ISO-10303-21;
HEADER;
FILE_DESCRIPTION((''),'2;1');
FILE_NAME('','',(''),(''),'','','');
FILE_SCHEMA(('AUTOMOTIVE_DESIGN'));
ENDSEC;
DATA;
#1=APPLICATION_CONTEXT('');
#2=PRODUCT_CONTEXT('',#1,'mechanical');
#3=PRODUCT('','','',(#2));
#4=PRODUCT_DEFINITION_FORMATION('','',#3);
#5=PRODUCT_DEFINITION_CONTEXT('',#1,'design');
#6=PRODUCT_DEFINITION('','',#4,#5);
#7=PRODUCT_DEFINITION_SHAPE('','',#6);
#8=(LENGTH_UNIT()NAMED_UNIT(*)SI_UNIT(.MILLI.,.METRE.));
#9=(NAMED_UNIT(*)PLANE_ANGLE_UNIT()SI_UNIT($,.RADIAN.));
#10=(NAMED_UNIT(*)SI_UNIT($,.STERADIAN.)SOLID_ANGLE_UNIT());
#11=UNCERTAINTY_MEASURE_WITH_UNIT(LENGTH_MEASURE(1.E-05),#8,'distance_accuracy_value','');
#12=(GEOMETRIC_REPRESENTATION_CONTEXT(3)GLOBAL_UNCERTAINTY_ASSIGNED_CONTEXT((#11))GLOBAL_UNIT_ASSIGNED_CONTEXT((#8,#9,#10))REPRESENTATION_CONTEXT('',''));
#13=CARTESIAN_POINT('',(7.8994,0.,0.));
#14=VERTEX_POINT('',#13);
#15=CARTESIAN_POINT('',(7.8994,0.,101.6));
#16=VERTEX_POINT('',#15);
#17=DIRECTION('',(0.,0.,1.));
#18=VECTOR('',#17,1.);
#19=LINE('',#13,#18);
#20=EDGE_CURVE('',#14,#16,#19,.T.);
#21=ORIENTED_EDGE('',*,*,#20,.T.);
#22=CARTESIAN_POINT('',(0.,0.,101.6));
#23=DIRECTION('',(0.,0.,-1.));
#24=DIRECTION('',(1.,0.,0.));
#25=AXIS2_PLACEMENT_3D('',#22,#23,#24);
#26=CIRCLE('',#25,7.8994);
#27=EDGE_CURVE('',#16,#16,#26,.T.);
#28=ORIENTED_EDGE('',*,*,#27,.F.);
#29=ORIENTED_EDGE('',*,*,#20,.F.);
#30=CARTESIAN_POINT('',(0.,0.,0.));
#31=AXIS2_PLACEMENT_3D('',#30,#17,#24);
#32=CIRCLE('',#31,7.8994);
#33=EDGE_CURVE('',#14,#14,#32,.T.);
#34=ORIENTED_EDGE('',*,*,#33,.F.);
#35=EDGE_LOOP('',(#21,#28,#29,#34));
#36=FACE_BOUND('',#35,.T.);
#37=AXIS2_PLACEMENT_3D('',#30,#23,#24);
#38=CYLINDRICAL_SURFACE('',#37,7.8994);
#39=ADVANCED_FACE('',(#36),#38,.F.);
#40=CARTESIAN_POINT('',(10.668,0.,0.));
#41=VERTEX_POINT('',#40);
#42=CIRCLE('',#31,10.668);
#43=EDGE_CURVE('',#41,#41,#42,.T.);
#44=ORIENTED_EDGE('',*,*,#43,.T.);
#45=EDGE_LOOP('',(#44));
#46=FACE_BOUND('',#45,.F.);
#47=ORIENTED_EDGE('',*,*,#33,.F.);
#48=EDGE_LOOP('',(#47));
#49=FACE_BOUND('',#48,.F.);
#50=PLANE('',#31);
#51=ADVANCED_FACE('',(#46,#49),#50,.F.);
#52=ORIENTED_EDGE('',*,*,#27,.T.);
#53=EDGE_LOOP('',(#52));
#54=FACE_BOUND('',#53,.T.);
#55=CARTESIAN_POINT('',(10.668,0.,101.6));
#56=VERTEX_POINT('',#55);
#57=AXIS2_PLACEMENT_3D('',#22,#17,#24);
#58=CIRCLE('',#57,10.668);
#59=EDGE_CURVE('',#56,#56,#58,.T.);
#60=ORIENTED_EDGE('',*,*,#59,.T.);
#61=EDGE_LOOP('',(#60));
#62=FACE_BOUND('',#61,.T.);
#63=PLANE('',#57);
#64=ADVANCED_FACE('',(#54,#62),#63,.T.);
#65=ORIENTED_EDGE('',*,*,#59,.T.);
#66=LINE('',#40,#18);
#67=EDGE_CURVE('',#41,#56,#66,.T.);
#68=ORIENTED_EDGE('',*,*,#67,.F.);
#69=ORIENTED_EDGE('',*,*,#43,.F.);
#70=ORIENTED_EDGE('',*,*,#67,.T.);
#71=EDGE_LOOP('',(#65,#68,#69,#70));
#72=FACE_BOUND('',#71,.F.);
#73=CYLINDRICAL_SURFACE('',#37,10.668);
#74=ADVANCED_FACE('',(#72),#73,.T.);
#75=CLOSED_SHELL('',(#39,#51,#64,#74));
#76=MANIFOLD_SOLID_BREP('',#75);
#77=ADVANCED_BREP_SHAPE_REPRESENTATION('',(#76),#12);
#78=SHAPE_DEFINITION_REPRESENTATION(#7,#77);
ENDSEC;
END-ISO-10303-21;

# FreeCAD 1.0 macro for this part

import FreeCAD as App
import Part
import Sketcher
from FreeCAD import Vector
Q = App.Units.Quantity

doc = App.newDocument("Part")
body = doc.addObject("PartDesign::Body", "Body")

# Sketch on XY plane
sketch1 = body.newObject("Sketcher::SketchObject", "Sketch")
sketch1.AttachmentSupport = (doc.getObject("XY_Plane"), [""])
sketch1.MapMode = "FlatFace"
sketch1.addGeometry(Part.Circle(Vector(0, 0, 0), Vector(0, 0, 1), 11), False)
sketch1.addConstraint([
    Sketcher.Constraint("Coincident", 0, 3, -1, 1),
    Sketcher.Constraint("Diameter", 0, Q("0.84 in")),
])
pad1 = body.newObject("PartDesign::Pad", "Pad")
pad1.Profile = sketch1
pad1.Length = Q("4 in")

# Sketch on XY plane
sketch2 = body.newObject("Sketcher::SketchObject", "Sketch001")
sketch2.AttachmentSupport = (doc.getObject("XY_Plane"), [""])
sketch2.MapMode = "FlatFace"
sketch2.addGeometry(Part.Circle(Vector(0, 0, 0), Vector(0, 0, 1), 8), False)
sketch2.addConstraint([
    Sketcher.Constraint("Coincident", 0, 3, -1, 1),
    Sketcher.Constraint("Diameter", 0, Q("0.622 in")),
])
pocket1 = body.newObject("PartDesign::Pocket", "Pocket")
pocket1.Profile = sketch2
pocket1.Type = "ThroughAll"
pocket1.Reversed = True

doc.recompute()
